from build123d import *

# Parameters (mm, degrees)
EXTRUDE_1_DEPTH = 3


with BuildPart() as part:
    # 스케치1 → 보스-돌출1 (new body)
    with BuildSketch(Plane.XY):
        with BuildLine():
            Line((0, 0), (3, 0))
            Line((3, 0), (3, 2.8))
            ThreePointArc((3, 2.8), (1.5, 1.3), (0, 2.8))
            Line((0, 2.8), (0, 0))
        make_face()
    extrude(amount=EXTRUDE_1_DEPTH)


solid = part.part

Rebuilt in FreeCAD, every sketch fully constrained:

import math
import FreeCAD as App
import Part
import Sketcher

V = App.Vector
Q = App.Units.Quantity

doc = App.newDocument("Part")
body = doc.addObject("PartDesign::Body", "Body")

sketch1 = body.newObject("Sketcher::SketchObject", "Sketch")
sketch1.AttachmentSupport = (doc.getObject("XY_Plane"), [""])
sketch1.MapMode = "FlatFace"
sketch1.addGeometry(Part.LineSegment(V(0, 0, 0), V(3, 0, 0)), False)
sketch1.addGeometry(Part.LineSegment(V(3, 0, 0), V(3, 2.8, 0)), False)
sketch1.addGeometry(Part.ArcOfCircle(Part.Circle(V(1.5, 2.8, 0), V(0, 0, 1), 1.5), math.radians(180), math.radians(360)), False)
sketch1.addGeometry(Part.LineSegment(V(0, 2.8, 0), V(0, 0, 0)), False)
sketch1.addConstraint(Sketcher.Constraint("Coincident", 0, 2, 1, 1))
sketch1.addConstraint(Sketcher.Constraint("Tangent", 1, 2, 2, 2))
sketch1.addConstraint(Sketcher.Constraint("Tangent", 2, 1, 3, 1))
sketch1.addConstraint(Sketcher.Constraint("Coincident", 3, 2, 0, 1))
sketch1.addConstraint(Sketcher.Constraint("Horizontal", 0))
sketch1.addConstraint(Sketcher.Constraint("Vertical", 1))
sketch1.addConstraint(Sketcher.Constraint("Vertical", 3))
sketch1.addConstraint(Sketcher.Constraint("Coincident", 3, 2, -1, 1))
sketch1.addConstraint(Sketcher.Constraint("Radius", 2, Q("1.5 mm")))
sketch1.addConstraint(Sketcher.Constraint("DistanceY", 1, 1, 1, 2, Q("2.8 mm")))
pad1 = body.newObject("PartDesign::Pad", "Pad")
pad1.Profile = sketch1
pad1.Length = 3

doc.recompute()
